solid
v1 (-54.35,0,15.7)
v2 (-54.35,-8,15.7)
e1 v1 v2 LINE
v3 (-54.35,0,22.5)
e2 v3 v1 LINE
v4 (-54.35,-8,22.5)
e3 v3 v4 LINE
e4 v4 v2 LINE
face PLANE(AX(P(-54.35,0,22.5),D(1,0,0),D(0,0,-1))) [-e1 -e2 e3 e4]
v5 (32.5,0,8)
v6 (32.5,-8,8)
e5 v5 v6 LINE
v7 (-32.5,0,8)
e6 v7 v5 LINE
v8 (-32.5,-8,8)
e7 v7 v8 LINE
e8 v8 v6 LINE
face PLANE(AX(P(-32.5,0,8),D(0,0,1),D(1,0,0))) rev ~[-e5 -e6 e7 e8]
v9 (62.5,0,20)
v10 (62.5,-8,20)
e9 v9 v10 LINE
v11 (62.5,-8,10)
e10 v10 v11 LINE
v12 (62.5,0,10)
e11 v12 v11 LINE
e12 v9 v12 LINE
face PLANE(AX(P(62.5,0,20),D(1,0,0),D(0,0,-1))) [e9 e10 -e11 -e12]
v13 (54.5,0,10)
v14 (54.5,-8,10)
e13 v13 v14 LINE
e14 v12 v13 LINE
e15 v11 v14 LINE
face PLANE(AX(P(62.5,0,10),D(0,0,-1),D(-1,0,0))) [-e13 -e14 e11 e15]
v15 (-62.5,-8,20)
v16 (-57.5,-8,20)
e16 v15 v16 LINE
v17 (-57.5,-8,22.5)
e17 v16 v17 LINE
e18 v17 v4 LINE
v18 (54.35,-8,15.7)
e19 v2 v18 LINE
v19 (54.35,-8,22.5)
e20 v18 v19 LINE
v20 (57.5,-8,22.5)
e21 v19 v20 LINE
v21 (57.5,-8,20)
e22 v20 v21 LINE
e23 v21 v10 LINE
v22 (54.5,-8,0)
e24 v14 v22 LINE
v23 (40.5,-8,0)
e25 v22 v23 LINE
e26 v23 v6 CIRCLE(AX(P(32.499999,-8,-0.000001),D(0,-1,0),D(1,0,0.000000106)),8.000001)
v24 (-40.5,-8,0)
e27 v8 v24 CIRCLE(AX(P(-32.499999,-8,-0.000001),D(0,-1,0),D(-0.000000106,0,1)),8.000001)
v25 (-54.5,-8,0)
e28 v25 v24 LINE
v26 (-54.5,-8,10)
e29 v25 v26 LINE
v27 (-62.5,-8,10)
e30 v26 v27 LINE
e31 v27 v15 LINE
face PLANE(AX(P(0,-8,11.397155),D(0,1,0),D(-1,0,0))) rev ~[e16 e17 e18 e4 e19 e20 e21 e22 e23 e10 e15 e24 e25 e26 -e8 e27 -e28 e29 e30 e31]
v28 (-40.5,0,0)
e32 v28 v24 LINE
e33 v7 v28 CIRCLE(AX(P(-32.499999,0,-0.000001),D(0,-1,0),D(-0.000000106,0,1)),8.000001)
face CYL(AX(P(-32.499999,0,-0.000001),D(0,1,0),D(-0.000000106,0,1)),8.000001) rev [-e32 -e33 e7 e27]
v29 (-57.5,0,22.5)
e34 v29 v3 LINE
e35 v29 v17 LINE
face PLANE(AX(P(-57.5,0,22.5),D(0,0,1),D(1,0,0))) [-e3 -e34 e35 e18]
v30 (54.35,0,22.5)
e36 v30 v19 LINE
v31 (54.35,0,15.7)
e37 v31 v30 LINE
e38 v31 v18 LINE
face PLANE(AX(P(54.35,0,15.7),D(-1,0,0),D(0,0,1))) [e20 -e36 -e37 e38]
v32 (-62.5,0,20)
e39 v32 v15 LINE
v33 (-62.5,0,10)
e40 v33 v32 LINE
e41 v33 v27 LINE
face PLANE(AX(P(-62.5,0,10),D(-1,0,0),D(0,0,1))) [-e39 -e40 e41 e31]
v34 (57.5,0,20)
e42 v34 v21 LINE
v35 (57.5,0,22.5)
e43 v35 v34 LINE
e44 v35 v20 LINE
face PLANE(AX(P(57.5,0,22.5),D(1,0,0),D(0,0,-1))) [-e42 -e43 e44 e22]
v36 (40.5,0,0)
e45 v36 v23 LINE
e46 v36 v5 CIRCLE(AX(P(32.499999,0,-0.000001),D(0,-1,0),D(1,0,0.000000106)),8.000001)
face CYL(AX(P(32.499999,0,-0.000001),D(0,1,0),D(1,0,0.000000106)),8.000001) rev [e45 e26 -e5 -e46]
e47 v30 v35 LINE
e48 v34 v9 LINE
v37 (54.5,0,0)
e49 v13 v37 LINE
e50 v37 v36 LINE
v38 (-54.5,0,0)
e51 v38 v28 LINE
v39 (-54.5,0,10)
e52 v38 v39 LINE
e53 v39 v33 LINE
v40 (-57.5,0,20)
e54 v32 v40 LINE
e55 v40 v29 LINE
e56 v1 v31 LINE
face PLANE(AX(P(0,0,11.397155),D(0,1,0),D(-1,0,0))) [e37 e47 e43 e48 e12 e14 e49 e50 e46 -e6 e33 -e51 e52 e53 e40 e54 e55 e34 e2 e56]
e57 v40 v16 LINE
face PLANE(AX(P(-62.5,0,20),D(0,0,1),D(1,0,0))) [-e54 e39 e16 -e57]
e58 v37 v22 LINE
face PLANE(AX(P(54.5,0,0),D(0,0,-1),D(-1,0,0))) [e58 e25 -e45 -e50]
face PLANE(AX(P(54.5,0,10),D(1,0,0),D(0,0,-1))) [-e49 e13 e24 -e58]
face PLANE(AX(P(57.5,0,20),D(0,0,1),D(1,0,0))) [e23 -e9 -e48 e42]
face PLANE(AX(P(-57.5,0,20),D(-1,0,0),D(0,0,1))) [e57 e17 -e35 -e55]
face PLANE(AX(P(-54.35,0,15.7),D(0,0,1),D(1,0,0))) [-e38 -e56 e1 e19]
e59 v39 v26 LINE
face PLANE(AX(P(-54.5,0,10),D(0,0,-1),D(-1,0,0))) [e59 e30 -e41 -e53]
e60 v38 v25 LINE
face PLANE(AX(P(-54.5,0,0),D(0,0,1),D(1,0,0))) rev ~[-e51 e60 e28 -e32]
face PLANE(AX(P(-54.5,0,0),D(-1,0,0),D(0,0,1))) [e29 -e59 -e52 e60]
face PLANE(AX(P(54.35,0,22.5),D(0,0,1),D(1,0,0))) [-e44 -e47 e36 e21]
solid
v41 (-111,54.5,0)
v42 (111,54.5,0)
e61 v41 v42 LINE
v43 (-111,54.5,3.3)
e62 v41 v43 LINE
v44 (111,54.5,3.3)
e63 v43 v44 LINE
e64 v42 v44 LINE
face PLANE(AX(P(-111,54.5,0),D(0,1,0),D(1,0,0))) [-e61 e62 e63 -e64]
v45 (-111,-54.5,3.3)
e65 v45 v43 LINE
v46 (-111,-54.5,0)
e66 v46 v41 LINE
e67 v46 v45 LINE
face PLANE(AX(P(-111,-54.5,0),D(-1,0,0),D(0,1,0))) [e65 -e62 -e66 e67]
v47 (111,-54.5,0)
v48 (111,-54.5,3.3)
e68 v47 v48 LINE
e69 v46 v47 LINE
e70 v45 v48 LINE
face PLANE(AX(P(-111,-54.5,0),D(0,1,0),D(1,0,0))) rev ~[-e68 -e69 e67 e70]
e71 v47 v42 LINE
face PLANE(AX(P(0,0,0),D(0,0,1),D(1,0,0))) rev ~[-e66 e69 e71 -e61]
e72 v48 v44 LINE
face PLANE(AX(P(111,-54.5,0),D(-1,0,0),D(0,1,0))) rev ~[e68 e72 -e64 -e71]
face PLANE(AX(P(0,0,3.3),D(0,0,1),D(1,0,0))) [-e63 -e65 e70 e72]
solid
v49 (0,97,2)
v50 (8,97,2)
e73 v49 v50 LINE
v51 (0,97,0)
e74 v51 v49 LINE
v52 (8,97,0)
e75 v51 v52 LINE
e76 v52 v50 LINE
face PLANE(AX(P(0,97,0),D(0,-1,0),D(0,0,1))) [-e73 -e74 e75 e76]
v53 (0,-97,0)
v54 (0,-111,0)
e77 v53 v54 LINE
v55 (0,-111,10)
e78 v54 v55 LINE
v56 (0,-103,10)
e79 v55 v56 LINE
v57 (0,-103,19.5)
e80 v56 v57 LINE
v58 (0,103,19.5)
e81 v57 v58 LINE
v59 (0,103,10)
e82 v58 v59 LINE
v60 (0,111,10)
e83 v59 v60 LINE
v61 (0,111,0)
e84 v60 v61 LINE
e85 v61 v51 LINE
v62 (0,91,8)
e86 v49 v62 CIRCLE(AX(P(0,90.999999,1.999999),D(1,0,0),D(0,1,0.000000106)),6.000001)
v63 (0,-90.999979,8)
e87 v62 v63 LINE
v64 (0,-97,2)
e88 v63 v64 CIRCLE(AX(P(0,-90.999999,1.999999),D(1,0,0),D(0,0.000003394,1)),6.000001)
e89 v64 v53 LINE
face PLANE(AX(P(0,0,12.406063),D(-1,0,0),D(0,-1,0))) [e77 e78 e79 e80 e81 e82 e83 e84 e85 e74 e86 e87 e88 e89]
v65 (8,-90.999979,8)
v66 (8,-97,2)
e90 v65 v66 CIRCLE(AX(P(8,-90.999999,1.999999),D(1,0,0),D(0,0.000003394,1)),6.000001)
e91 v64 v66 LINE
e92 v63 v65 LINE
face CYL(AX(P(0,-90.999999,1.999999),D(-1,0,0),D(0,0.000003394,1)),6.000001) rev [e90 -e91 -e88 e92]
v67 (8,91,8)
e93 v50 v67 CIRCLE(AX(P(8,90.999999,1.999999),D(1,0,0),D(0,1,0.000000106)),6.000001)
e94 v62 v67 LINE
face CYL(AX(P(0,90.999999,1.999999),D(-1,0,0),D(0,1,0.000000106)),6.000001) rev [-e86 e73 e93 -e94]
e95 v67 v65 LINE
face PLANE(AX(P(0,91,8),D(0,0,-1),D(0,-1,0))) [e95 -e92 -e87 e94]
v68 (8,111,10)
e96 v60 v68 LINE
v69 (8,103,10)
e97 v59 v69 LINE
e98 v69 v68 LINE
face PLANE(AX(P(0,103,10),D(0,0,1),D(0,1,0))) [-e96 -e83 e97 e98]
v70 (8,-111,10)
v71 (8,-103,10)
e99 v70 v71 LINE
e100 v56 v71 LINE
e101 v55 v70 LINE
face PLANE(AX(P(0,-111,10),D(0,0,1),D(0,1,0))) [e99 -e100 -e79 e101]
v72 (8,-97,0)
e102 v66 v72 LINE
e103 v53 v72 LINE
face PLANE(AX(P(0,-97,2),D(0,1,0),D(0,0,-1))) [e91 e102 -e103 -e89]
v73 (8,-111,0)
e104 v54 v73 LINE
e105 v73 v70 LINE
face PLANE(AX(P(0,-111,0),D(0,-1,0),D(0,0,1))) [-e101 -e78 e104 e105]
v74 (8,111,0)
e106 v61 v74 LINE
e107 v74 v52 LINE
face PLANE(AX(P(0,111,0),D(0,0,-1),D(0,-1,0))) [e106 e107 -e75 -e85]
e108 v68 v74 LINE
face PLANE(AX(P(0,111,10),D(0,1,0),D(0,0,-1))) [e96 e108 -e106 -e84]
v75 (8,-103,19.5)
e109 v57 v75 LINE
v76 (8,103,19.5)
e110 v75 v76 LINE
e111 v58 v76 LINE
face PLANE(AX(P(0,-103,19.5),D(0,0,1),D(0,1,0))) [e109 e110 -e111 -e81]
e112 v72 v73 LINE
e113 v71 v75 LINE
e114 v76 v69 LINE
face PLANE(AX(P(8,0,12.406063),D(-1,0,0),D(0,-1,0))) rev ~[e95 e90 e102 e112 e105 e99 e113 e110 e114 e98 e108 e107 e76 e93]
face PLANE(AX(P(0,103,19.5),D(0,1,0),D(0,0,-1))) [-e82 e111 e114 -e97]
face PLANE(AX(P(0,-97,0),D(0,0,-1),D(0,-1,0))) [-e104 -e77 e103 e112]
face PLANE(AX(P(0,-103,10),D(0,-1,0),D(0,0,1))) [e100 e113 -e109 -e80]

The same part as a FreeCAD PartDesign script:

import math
import FreeCAD as App
import Part
import Sketcher
from FreeCAD import Vector

doc = App.newDocument("Part")
body = doc.addObject("PartDesign::Body", "Body")

sketch1 = body.newObject("Sketcher::SketchObject", "Sketch")
sketch1.AttachmentSupport = (doc.getObject("YZ_Plane"), [""])
sketch1.MapMode = "FlatFace"
sketch1.addGeometry([
    Part.LineSegment(Vector(-111, 10, 0), Vector(-111, 0, 0)),
    Part.LineSegment(Vector(-111, 0, 0), Vector(-97, 0, 0)),
    Part.LineSegment(Vector(-97, 0, 0), Vector(-97, 2, 0)),
    Part.ArcOfCircle(Part.Circle(Vector(-91, 2, 0), Vector(0, 0, 1), 6), math.radians(90), math.radians(180)),
    Part.LineSegment(Vector(-91, 8, 0), Vector(91, 8, 0)),
    Part.ArcOfCircle(Part.Circle(Vector(91, 2, 0), Vector(0, 0, 1), 6), math.radians(0), math.radians(90)),
    Part.LineSegment(Vector(97, 2, 0), Vector(97, 0, 0)),
    Part.LineSegment(Vector(97, 0, 0), Vector(111, 0, 0)),
    Part.LineSegment(Vector(111, 0, 0), Vector(111, 10, 0)),
    Part.LineSegment(Vector(111, 10, 0), Vector(103, 10, 0)),
    Part.LineSegment(Vector(103, 10, 0), Vector(103, 19.5, 0)),
    Part.LineSegment(Vector(103, 19.5, 0), Vector(-103, 19.5, 0)),
    Part.LineSegment(Vector(-103, 19.5, 0), Vector(-103, 10, 0)),
    Part.LineSegment(Vector(-103, 10, 0), Vector(-111, 10, 0)),
], False)
sketch1.addConstraint([
    Sketcher.Constraint("Coincident", 0, 2, 1, 1),
    Sketcher.Constraint("Coincident", 1, 2, 2, 1),
    Sketcher.Constraint("Tangent", 2, 2, 3, 2),
    Sketcher.Constraint("Coincident", 3, 1, 4, 1),
    Sketcher.Constraint("Tangent", 4, 2, 5, 2),
    Sketcher.Constraint("Tangent", 5, 1, 6, 1),
    Sketcher.Constraint("Coincident", 6, 2, 7, 1),
    Sketcher.Constraint("Coincident", 7, 2, 8, 1),
    Sketcher.Constraint("Coincident", 8, 2, 9, 1),
    Sketcher.Constraint("Coincident", 9, 2, 10, 1),
    Sketcher.Constraint("Coincident", 10, 2, 11, 1),
    Sketcher.Constraint("Coincident", 11, 2, 12, 1),
    Sketcher.Constraint("Coincident", 12, 2, 13, 1),
    Sketcher.Constraint("Coincident", 13, 2, 0, 1),
    Sketcher.Constraint("Vertical", 0),
    Sketcher.Constraint("Horizontal", 1),
    Sketcher.Constraint("Vertical", 2),
    Sketcher.Constraint("Horizontal", 4),
    Sketcher.Constraint("Vertical", 6),
    Sketcher.Constraint("Horizontal", 7),
    Sketcher.Constraint("Vertical", 8),
    Sketcher.Constraint("Horizontal", 9),
    Sketcher.Constraint("Vertical", 10),
    Sketcher.Constraint("Horizontal", 11),
    Sketcher.Constraint("Vertical", 12),
    Sketcher.Constraint("Horizontal", 13),
    Sketcher.Constraint("Equal", 3, 5),
    Sketcher.Constraint("Symmetric", 1, 2, 6, 2, -1, 1),
    Sketcher.Constraint("Symmetric", 0, 2, 7, 2, -2),
    Sketcher.Constraint("Symmetric", 9, 2, 12, 2, -2),
    Sketcher.Constraint("Radius", 3, 6.000001),
    Sketcher.Constraint("DistanceX", 1, 1, 1, 2, 14.0),
    Sketcher.Constraint("DistanceX", 9, 2, 9, 1, 8.0),
    Sketcher.Constraint("DistanceX", 11, 2, 11, 1, 206.0),
    Sketcher.Constraint("DistanceY", 0, 2, 0, 1, 10.0),
    Sketcher.Constraint("DistanceY", 2, 1, 2, 2, 2.0),
    Sketcher.Constraint("DistanceY", 10, 1, 10, 2, 9.5),
    Sketcher.Constraint("DistanceX", 4, 1, 4, 2, 181.999979),
])
pad1 = body.newObject("PartDesign::Pad", "Pad")
pad1.Profile = sketch1
pad1.Length = 8
body2 = doc.addObject("PartDesign::Body", "Body001")

sketch2 = body2.newObject("Sketcher::SketchObject", "Sketch001")
sketch2.AttachmentSupport = (doc.getObject("XZ_Plane001"), [""])
sketch2.MapMode = "FlatFace"
sketch2.addGeometry([
    Part.LineSegment(Vector(-54.5, 10, 0), Vector(-54.5, 0, 0)),
    Part.LineSegment(Vector(-54.5, 0, 0), Vector(-40.5, 0, 0)),
    Part.ArcOfCircle(Part.Circle(Vector(-32.5, 0, 0), Vector(0, 0, 1), 8), math.radians(90), math.radians(180)),
    Part.LineSegment(Vector(-32.5, 8, 0), Vector(32.5, 8, 0)),
    Part.ArcOfCircle(Part.Circle(Vector(32.5, 0, 0), Vector(0, 0, 1), 8), math.radians(0), math.radians(90)),
    Part.LineSegment(Vector(40.5, 0, 0), Vector(54.5, 0, 0)),
    Part.LineSegment(Vector(54.5, 0, 0), Vector(54.5, 10, 0)),
    Part.LineSegment(Vector(54.5, 10, 0), Vector(62.5, 10, 0)),
    Part.LineSegment(Vector(62.5, 10, 0), Vector(62.5, 20, 0)),
    Part.LineSegment(Vector(62.5, 20, 0), Vector(57.5, 20, 0)),
    Part.LineSegment(Vector(57.5, 20, 0), Vector(57.5, 22.5, 0)),
    Part.LineSegment(Vector(57.5, 22.5, 0), Vector(54.4, 22.5, 0)),
    Part.LineSegment(Vector(54.4, 22.5, 0), Vector(54.4, 15.7, 0)),
    Part.LineSegment(Vector(54.4, 15.7, 0), Vector(-54.4, 15.7, 0)),
    Part.LineSegment(Vector(-54.4, 15.7, 0), Vector(-54.4, 22.5, 0)),
    Part.LineSegment(Vector(-54.4, 22.5, 0), Vector(-57.5, 22.5, 0)),
    Part.LineSegment(Vector(-57.5, 22.5, 0), Vector(-57.5, 20, 0)),
    Part.LineSegment(Vector(-57.5, 20, 0), Vector(-62.5, 20, 0)),
    Part.LineSegment(Vector(-62.5, 20, 0), Vector(-62.5, 10, 0)),
    Part.LineSegment(Vector(-62.5, 10, 0), Vector(-54.5, 10, 0)),
], False)
sketch2.addConstraint([
    Sketcher.Constraint("Coincident", 0, 2, 1, 1),
    Sketcher.Constraint("Coincident", 1, 2, 2, 2),
    Sketcher.Constraint("Tangent", 2, 1, 3, 1),
    Sketcher.Constraint("Tangent", 3, 2, 4, 2),
    Sketcher.Constraint("Coincident", 4, 1, 5, 1),
    Sketcher.Constraint("Coincident", 5, 2, 6, 1),
    Sketcher.Constraint("Coincident", 6, 2, 7, 1),
    Sketcher.Constraint("Coincident", 7, 2, 8, 1),
    Sketcher.Constraint("Coincident", 8, 2, 9, 1),
    Sketcher.Constraint("Coincident", 9, 2, 10, 1),
    Sketcher.Constraint("Coincident", 10, 2, 11, 1),
    Sketcher.Constraint("Coincident", 11, 2, 12, 1),
    Sketcher.Constraint("Coincident", 12, 2, 13, 1),
    Sketcher.Constraint("Coincident", 13, 2, 14, 1),
    Sketcher.Constraint("Coincident", 14, 2, 15, 1),
    Sketcher.Constraint("Coincident", 15, 2, 16, 1),
    Sketcher.Constraint("Coincident", 16, 2, 17, 1),
    Sketcher.Constraint("Coincident", 17, 2, 18, 1),
    Sketcher.Constraint("Coincident", 18, 2, 19, 1),
    Sketcher.Constraint("Coincident", 19, 2, 0, 1),
    Sketcher.Constraint("Vertical", 0),
    Sketcher.Constraint("Horizontal", 1),
    Sketcher.Constraint("Horizontal", 3),
    Sketcher.Constraint("Horizontal", 5),
    Sketcher.Constraint("Vertical", 6),
    Sketcher.Constraint("Horizontal", 7),
    Sketcher.Constraint("Vertical", 8),
    Sketcher.Constraint("Horizontal", 9),
    Sketcher.Constraint("Vertical", 10),
    Sketcher.Constraint("Horizontal", 11),
    Sketcher.Constraint("Vertical", 12),
    Sketcher.Constraint("Horizontal", 13),
    Sketcher.Constraint("Vertical", 14),
    Sketcher.Constraint("Horizontal", 15),
    Sketcher.Constraint("Vertical", 16),
    Sketcher.Constraint("Horizontal", 17),
    Sketcher.Constraint("Vertical", 18),
    Sketcher.Constraint("Horizontal", 19),
    Sketcher.Constraint("Equal", 2, 4),
    Sketcher.Constraint("Symmetric", 2, 3, 4, 3, -1, 1),
    Sketcher.Constraint("Symmetric", 0, 2, 5, 2, -1, 1),
    Sketcher.Constraint("Symmetric", 11, 2, 14, 2, -2),
    Sketcher.Constraint("Symmetric", 9, 2, 16, 2, -2),
    Sketcher.Constraint("Symmetric", 7, 2, 18, 2, -2),
    Sketcher.Constraint("PointOnObject", 0, 2, -1),
    Sketcher.Constraint("Equal", 6, 8),
    Sketcher.Constraint("Radius", 2, 8.000001),
    Sketcher.Constraint("DistanceX", 1, 1, 1, 2, 14.0),
    Sketcher.Constraint("DistanceX", 3, 1, 3, 2, 65.0),
    Sketcher.Constraint("DistanceX", 7, 1, 7, 2, 8.0),
    Sketcher.Constraint("DistanceX", 9, 2, 9, 1, 5.0),
    Sketcher.Constraint("DistanceY", 0, 2, 0, 1, 10.0),
    Sketcher.Constraint("DistanceX", 13, 2, 13, 1, 108.7),
    Sketcher.Constraint("DistanceY", 10, 1, 10, 2, 2.5),
    Sketcher.Constraint("DistanceY", 12, 2, 12, 1, 6.8),
])
pad2 = body2.newObject("PartDesign::Pad", "Pad001")
pad2.Profile = sketch2
pad2.Length = 8
body3 = doc.addObject("PartDesign::Body", "Body002")

sketch3 = body3.newObject("Sketcher::SketchObject", "Sketch002")
sketch3.AttachmentSupport = (doc.getObject("XY_Plane002"), [""])
sketch3.MapMode = "FlatFace"
sketch3.addGeometry([
    Part.LineSegment(Vector(-111, 54, 0), Vector(-111, -54, 0)),
    Part.LineSegment(Vector(-111, -54, 0), Vector(111, -54, 0)),
    Part.LineSegment(Vector(111, -54, 0), Vector(111, 54, 0)),
    Part.LineSegment(Vector(111, 54, 0), Vector(-111, 54, 0)),
], False)
sketch3.addConstraint([
    Sketcher.Constraint("Coincident", 0, 2, 1, 1),
    Sketcher.Constraint("Coincident", 1, 2, 2, 1),
    Sketcher.Constraint("Coincident", 2, 2, 3, 1),
    Sketcher.Constraint("Coincident", 3, 2, 0, 1),
    Sketcher.Constraint("Vertical", 0),
    Sketcher.Constraint("Horizontal", 1),
    Sketcher.Constraint("Vertical", 2),
    Sketcher.Constraint("Horizontal", 3),
    Sketcher.Constraint("Symmetric", 0, 2, 2, 2, -1, 1),
    Sketcher.Constraint("DistanceX", 1, 1, 1, 2, 222.0),
    Sketcher.Constraint("DistanceY", 0, 2, 0, 1, 109.0),
])
pad3 = body3.newObject("PartDesign::Pad", "Pad002")
pad3.Profile = sketch3
pad3.Length = 3.3

doc.recompute()
